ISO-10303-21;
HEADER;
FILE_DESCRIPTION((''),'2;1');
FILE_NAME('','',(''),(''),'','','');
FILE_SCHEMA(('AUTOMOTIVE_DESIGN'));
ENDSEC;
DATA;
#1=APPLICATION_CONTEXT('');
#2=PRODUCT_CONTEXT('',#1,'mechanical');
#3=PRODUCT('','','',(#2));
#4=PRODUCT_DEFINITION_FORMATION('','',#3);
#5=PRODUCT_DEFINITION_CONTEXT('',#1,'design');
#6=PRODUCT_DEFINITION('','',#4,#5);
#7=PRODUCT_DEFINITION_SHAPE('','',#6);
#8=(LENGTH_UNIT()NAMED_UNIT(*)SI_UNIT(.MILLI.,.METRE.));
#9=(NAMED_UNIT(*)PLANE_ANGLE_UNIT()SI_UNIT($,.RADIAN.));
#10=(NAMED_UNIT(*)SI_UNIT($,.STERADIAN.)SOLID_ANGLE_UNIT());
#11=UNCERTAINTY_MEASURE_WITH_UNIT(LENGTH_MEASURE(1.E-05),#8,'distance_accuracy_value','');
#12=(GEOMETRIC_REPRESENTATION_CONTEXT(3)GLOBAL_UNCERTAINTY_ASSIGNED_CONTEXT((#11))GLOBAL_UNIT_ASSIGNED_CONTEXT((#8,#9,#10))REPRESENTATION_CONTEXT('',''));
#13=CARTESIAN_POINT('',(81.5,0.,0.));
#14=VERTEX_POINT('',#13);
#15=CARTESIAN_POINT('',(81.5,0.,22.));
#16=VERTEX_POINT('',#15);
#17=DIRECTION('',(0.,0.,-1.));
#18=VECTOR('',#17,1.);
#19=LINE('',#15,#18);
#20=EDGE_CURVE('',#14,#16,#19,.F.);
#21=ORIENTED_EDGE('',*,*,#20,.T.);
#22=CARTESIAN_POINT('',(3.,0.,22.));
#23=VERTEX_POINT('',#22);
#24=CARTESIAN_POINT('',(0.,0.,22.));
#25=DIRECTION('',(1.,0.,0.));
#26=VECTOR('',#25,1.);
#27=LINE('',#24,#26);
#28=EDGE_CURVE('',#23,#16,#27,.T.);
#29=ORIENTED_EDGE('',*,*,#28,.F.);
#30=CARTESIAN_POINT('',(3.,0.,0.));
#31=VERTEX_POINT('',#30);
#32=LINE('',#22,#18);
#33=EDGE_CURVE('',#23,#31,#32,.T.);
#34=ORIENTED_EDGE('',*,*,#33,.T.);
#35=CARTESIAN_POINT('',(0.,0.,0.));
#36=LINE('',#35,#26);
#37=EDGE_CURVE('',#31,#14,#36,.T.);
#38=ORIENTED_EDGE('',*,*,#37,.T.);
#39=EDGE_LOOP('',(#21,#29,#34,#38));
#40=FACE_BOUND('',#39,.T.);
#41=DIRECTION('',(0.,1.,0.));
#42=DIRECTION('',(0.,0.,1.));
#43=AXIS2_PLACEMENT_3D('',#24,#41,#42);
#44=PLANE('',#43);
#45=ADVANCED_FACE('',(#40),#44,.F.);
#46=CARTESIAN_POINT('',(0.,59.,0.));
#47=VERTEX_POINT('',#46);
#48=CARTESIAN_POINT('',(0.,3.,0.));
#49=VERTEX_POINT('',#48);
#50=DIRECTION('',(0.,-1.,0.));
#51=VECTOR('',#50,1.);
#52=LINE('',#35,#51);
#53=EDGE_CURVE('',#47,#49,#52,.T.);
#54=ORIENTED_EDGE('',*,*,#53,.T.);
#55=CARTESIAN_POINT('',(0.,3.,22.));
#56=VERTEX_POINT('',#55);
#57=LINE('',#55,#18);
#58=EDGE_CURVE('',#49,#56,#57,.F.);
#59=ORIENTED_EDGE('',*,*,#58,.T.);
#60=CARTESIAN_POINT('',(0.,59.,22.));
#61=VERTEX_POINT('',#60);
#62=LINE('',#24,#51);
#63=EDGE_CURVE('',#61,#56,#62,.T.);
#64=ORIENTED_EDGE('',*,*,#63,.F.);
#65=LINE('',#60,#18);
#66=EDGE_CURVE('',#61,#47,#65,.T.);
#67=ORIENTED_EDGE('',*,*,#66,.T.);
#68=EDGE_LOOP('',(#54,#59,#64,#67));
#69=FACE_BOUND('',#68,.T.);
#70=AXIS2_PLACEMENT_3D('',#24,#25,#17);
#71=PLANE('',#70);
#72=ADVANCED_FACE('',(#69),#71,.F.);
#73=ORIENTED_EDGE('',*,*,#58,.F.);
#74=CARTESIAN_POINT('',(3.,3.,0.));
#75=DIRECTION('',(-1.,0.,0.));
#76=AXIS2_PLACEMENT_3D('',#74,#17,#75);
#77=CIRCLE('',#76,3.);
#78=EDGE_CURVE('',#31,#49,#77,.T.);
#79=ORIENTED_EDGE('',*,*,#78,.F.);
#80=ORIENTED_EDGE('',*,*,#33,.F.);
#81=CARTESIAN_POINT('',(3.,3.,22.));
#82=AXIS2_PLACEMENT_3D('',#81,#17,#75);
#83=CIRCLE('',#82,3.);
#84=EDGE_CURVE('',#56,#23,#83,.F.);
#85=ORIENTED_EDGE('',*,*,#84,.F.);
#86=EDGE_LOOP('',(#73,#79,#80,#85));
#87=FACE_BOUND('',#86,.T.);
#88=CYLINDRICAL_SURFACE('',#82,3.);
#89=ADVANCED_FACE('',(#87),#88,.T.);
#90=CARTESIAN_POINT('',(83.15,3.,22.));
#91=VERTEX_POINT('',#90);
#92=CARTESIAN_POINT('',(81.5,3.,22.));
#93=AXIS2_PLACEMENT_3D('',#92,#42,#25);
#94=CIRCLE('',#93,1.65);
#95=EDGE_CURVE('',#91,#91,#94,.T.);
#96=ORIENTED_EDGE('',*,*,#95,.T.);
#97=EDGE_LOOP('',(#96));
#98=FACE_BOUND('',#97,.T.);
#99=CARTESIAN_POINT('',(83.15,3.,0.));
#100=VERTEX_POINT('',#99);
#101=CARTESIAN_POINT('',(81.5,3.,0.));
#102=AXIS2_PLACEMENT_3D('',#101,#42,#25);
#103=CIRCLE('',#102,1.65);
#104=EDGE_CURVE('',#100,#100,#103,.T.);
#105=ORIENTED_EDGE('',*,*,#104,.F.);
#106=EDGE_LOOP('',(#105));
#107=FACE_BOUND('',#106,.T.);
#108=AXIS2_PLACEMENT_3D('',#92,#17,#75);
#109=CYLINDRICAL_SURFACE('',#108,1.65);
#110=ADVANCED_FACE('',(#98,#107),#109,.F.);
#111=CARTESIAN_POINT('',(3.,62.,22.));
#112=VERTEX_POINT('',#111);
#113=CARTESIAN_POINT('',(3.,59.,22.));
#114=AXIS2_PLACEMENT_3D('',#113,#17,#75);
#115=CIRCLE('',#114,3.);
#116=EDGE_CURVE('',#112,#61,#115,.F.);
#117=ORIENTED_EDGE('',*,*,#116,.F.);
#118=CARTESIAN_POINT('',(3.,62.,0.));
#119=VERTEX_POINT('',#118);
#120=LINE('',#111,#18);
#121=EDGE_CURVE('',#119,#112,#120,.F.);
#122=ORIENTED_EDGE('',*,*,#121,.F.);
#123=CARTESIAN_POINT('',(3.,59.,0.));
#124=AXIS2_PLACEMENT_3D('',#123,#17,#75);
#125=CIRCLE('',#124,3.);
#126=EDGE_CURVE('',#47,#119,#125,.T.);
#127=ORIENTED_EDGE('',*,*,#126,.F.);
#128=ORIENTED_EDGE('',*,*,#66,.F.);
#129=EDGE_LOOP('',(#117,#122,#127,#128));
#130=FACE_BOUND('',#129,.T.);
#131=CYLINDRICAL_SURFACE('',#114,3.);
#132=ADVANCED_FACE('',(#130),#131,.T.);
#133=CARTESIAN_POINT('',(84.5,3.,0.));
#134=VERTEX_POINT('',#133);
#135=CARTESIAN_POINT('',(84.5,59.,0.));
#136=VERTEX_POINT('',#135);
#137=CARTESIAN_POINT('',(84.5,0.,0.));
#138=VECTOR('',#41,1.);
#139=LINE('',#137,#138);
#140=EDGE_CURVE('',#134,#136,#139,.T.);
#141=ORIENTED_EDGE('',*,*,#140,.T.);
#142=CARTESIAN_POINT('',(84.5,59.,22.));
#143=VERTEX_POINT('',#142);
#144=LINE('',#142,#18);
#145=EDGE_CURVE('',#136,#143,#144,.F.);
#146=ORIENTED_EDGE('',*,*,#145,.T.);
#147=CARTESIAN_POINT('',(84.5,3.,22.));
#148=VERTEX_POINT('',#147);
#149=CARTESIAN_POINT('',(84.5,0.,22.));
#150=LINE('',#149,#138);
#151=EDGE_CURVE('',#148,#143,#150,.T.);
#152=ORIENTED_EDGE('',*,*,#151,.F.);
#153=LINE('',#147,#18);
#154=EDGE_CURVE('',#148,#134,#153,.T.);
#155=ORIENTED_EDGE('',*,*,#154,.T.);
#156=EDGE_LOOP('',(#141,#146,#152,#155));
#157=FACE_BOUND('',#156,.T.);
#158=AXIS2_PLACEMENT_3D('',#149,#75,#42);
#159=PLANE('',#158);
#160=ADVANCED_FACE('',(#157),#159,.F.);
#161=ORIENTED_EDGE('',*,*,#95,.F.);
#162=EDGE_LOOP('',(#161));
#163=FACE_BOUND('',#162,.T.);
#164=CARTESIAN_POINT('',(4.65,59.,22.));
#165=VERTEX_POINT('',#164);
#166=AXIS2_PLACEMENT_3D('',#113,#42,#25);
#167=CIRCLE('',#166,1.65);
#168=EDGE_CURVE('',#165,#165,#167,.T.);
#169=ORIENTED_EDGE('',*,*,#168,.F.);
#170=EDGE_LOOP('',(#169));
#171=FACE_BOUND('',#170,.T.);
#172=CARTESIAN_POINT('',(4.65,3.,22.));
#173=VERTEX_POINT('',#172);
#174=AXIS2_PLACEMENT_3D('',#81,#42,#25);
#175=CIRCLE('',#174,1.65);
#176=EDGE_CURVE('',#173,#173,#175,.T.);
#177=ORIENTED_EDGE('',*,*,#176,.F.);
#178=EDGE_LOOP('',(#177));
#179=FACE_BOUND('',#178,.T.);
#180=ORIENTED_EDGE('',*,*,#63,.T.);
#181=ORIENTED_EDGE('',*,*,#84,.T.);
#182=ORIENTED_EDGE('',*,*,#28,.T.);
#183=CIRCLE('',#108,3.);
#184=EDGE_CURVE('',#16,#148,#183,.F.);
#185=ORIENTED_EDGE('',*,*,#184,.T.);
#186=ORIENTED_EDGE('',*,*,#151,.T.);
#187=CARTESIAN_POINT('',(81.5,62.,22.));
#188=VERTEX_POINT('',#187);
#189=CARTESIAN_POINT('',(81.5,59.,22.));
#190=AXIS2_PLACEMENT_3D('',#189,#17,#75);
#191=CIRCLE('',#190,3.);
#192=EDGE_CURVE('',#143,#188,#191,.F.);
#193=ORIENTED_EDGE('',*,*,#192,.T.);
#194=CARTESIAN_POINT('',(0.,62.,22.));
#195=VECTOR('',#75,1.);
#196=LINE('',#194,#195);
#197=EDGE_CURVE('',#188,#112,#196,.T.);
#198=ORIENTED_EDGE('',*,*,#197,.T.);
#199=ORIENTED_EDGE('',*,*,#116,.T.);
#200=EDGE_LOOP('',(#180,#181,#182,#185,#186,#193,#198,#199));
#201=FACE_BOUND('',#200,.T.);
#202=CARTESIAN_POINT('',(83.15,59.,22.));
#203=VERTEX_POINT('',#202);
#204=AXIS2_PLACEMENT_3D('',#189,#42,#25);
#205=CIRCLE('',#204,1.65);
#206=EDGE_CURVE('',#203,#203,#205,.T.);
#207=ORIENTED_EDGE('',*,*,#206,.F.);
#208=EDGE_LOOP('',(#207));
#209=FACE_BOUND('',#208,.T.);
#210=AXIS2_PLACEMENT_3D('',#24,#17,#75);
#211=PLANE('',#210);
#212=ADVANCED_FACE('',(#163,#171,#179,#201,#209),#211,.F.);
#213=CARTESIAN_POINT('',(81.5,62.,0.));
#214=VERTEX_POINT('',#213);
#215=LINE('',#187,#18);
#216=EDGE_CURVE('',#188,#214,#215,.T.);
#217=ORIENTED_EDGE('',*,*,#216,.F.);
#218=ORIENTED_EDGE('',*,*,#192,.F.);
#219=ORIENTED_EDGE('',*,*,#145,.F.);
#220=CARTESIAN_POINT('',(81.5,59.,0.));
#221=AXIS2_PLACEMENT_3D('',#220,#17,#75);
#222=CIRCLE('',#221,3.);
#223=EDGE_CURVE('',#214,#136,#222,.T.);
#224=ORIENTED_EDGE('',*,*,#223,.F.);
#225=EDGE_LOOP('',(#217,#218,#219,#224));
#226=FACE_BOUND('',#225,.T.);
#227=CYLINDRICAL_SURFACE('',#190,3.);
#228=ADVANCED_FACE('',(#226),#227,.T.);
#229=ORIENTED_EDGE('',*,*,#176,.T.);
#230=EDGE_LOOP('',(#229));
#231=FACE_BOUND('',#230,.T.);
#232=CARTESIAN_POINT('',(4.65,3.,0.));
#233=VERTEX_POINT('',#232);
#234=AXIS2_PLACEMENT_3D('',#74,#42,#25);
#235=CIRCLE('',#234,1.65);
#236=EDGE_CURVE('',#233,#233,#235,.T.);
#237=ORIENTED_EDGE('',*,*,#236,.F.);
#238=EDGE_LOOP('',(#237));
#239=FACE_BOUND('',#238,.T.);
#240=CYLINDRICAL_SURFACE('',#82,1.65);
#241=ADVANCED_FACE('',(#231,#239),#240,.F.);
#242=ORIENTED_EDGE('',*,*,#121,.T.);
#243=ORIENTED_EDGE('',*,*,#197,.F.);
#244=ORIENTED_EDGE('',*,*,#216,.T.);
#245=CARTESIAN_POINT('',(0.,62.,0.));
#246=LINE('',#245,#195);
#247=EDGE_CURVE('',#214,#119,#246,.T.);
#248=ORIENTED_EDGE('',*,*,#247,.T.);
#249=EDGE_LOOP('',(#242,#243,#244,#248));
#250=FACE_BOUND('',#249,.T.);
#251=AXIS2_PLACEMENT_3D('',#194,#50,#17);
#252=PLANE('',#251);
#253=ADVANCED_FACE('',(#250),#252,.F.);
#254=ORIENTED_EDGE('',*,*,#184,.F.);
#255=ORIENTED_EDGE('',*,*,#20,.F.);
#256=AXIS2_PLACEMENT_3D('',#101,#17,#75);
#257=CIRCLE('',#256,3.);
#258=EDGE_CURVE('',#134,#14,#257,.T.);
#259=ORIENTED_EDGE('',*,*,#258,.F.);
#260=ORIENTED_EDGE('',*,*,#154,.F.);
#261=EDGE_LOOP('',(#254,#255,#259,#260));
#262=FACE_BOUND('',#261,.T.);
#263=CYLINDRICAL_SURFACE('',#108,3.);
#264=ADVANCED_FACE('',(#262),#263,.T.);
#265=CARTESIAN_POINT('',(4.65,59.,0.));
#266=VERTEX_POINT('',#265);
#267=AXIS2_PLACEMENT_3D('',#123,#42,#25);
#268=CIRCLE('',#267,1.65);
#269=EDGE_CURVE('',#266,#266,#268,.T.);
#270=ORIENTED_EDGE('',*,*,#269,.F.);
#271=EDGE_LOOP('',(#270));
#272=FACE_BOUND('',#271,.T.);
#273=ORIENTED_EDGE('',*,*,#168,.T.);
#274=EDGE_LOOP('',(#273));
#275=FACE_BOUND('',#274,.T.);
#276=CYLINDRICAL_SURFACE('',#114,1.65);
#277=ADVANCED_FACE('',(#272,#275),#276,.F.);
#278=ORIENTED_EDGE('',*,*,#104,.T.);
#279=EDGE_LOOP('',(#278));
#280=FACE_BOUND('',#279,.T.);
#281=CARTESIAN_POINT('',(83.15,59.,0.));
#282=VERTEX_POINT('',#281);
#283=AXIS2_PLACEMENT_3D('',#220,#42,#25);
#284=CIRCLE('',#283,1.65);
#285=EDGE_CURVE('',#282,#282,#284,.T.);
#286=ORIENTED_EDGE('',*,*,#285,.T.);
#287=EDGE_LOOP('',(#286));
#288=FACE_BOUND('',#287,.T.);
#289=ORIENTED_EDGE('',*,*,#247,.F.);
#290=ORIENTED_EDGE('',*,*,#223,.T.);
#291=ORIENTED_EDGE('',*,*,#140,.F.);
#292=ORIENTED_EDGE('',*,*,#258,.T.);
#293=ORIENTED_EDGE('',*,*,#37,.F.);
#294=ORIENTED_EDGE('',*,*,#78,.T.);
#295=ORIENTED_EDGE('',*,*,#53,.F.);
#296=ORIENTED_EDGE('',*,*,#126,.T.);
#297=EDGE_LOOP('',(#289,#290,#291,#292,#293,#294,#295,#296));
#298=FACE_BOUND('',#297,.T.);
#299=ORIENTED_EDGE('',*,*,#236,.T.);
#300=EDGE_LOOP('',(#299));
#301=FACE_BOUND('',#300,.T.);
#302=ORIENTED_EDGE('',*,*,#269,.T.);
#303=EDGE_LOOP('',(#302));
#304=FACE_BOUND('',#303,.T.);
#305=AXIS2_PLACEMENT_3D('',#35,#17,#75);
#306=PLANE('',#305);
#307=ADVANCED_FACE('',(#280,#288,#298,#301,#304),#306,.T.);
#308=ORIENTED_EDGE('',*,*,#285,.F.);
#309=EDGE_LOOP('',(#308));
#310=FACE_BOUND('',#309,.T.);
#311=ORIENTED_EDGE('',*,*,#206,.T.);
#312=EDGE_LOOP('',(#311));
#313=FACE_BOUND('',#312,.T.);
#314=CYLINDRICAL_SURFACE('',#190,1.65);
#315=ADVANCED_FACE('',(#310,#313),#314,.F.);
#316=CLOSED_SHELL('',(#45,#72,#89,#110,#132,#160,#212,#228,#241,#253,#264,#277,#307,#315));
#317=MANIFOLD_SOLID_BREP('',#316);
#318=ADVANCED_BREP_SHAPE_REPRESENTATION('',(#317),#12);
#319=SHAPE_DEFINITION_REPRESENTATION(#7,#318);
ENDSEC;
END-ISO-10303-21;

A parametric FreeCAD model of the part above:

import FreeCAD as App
import Part
import Sketcher

V = App.Vector


def edges_at(feature, points):
    """Names of the edges that pass closest to the given points."""
    edges = feature.Shape.Edges
    near = lambda p: min(range(len(edges)), key=lambda i: edges[i].distToShape(Part.Vertex(*p))[0])
    return sorted({f"Edge{near(p) + 1}" for p in points})


def add_polygon(sketch, points):
    """Adds a closed chain of lines whose ends are joined by coincident constraints."""
    first, n = sketch.GeometryCount, len(points)
    for a, b in zip(points, points[1:] + points[:1]):
        sketch.addGeometry(Part.LineSegment(App.Vector(*a, 0), App.Vector(*b, 0)), False)
    for i in range(n):
        sketch.addConstraint(Sketcher.Constraint("Coincident", first + i, 2, first + (i + 1) % n, 1))

doc = App.newDocument("Part")
body = doc.addObject("PartDesign::Body", "Body")

# Sketch on XY plane
sketch1 = body.newObject("Sketcher::SketchObject", "Sketch")
sketch1.AttachmentSupport = (doc.getObject("XY_Plane"), [""])
sketch1.MapMode = "FlatFace"
add_polygon(sketch1, [(0, 62), (0, 0), (84.5, 0), (84.5, 62)])  # lines 0-3
sketch1.addGeometry(Part.Circle(V(3, 3, 0), V(0, 0, 1), 1.6), False)  # 4
sketch1.addGeometry(Part.Circle(V(81.5, 3, 0), V(0, 0, 1), 1.6), False)  # 5
sketch1.addGeometry(Part.Circle(V(3, 59, 0), V(0, 0, 1), 1.6), False)  # 6
sketch1.addGeometry(Part.Circle(V(81.5, 59, 0), V(0, 0, 1), 1.6), False)  # 7
sketch1.addConstraint(Sketcher.Constraint("Vertical", 0))
sketch1.addConstraint(Sketcher.Constraint("Horizontal", 1))
sketch1.addConstraint(Sketcher.Constraint("Vertical", 2))
sketch1.addConstraint(Sketcher.Constraint("Horizontal", 3))
sketch1.addConstraint(Sketcher.Constraint("Coincident", 0, 2, -1, 1))
sketch1.addConstraint(Sketcher.Constraint("Equal", 4, 5))
sketch1.addConstraint(Sketcher.Constraint("Equal", 5, 6))
sketch1.addConstraint(Sketcher.Constraint("Equal", 6, 7))
sketch1.addConstraint(Sketcher.Constraint("Horizontal", 4, 3, 5, 3))
sketch1.addConstraint(Sketcher.Constraint("Horizontal", 6, 3, 7, 3))
sketch1.addConstraint(Sketcher.Constraint("Vertical", 4, 3, 6, 3))
sketch1.addConstraint(Sketcher.Constraint("Vertical", 5, 3, 7, 3))
sketch1.addConstraint(Sketcher.Constraint("Diameter", 4, 3.3))
sketch1.addConstraint(Sketcher.Constraint("DistanceY", 0, 2, 0, 1, 62.0))
sketch1.addConstraint(Sketcher.Constraint("DistanceX", 1, 1, 1, 2, 84.5))
sketch1.addConstraint(Sketcher.Constraint("DistanceX", -1, 1, 4, 3, 3.0))
sketch1.addConstraint(Sketcher.Constraint("DistanceY", -1, 1, 4, 3, 3.0))
sketch1.addConstraint(Sketcher.Constraint("DistanceY", -1, 1, 6, 3, 59.0))
sketch1.addConstraint(Sketcher.Constraint("DistanceX", 5, 3, 1, 2, 3.0))
pad1 = body.newObject("PartDesign::Pad", "Pad")
pad1.Profile = sketch1
pad1.Length = 22
doc.recompute()

fillet = body.newObject("PartDesign::Fillet", "Fillet")
fillet.Base = (pad1, edges_at(pad1, [
    (0, 62, 11),
    (84.5, 62, 11),
    (84.5, 0, 11),
    (0, 0, 11),
]))
fillet.Radius = 3

doc.recompute()
